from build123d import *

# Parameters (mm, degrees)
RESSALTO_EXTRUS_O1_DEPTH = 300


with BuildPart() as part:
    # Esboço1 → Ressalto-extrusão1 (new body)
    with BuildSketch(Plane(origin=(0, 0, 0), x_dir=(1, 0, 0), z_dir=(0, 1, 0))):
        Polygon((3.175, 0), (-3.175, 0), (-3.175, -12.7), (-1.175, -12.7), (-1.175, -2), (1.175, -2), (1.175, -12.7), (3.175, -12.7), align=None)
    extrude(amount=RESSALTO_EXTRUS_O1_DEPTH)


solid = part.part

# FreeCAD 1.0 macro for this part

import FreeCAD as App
import Part
import Sketcher
from FreeCAD import Vector

doc = App.newDocument("Part")
body = doc.addObject("PartDesign::Body", "Body")

sketch1 = doc.addObject("Sketcher::SketchObject", "Sketch")
body.addObject(sketch1)
sketch1.AttachmentSupport = (doc.XZ_Plane, [""])
sketch1.MapMode = "FlatFace"
sketch1.addGeometry(Part.LineSegment(Vector(3.2, 0, 0), Vector(-3.2, 0, 0)), False)
sketch1.addGeometry(Part.LineSegment(Vector(-3.2, 0, 0), Vector(-3.2, 12.7, 0)), False)
sketch1.addGeometry(Part.LineSegment(Vector(-3.2, 12.7, 0), Vector(-1.2, 12.7, 0)), False)
sketch1.addGeometry(Part.LineSegment(Vector(-1.2, 12.7, 0), Vector(-1.2, 2, 0)), False)
sketch1.addGeometry(Part.LineSegment(Vector(-1.2, 2, 0), Vector(1.2, 2, 0)), False)
sketch1.addGeometry(Part.LineSegment(Vector(1.2, 2, 0), Vector(1.2, 12.7, 0)), False)
sketch1.addGeometry(Part.LineSegment(Vector(1.2, 12.7, 0), Vector(3.2, 12.7, 0)), False)
sketch1.addGeometry(Part.LineSegment(Vector(3.2, 12.7, 0), Vector(3.2, 0, 0)), False)
sketch1.addConstraint(Sketcher.Constraint("Coincident", 0, 2, 1, 1))
sketch1.addConstraint(Sketcher.Constraint("Coincident", 1, 2, 2, 1))
sketch1.addConstraint(Sketcher.Constraint("Coincident", 2, 2, 3, 1))
sketch1.addConstraint(Sketcher.Constraint("Coincident", 3, 2, 4, 1))
sketch1.addConstraint(Sketcher.Constraint("Coincident", 4, 2, 5, 1))
sketch1.addConstraint(Sketcher.Constraint("Coincident", 5, 2, 6, 1))
sketch1.addConstraint(Sketcher.Constraint("Coincident", 6, 2, 7, 1))
sketch1.addConstraint(Sketcher.Constraint("Coincident", 7, 2, 0, 1))
sketch1.addConstraint(Sketcher.Constraint("Horizontal", 0))
sketch1.addConstraint(Sketcher.Constraint("Vertical", 1))
sketch1.addConstraint(Sketcher.Constraint("Horizontal", 2))
sketch1.addConstraint(Sketcher.Constraint("Vertical", 3))
sketch1.addConstraint(Sketcher.Constraint("Horizontal", 4))
sketch1.addConstraint(Sketcher.Constraint("Vertical", 5))
sketch1.addConstraint(Sketcher.Constraint("Horizontal", 6))
sketch1.addConstraint(Sketcher.Constraint("Vertical", 7))
sketch1.addConstraint(Sketcher.Constraint("Symmetric", 0, 2, 7, 2, -1, 1))
sketch1.addConstraint(Sketcher.Constraint("Symmetric", 2, 2, 5, 2, -2))
sketch1.addConstraint(Sketcher.Constraint("DistanceX", 2, 1, 2, 2, 2.0))
sketch1.addConstraint(Sketcher.Constraint("DistanceY", 1, 1, 1, 2, 12.7))
sketch1.addConstraint(Sketcher.Constraint("DistanceY", 3, 2, 3, 1, 10.7))
sketch1.addConstraint(Sketcher.Constraint("DistanceX", 0, 2, 0, 1, 6.35))
pad1 = doc.addObject("PartDesign::Pad", "Pad")
body.addObject(pad1)
pad1.Profile = sketch1
pad1.Length = 300
pad1.Reversed = True

doc.recompute()
